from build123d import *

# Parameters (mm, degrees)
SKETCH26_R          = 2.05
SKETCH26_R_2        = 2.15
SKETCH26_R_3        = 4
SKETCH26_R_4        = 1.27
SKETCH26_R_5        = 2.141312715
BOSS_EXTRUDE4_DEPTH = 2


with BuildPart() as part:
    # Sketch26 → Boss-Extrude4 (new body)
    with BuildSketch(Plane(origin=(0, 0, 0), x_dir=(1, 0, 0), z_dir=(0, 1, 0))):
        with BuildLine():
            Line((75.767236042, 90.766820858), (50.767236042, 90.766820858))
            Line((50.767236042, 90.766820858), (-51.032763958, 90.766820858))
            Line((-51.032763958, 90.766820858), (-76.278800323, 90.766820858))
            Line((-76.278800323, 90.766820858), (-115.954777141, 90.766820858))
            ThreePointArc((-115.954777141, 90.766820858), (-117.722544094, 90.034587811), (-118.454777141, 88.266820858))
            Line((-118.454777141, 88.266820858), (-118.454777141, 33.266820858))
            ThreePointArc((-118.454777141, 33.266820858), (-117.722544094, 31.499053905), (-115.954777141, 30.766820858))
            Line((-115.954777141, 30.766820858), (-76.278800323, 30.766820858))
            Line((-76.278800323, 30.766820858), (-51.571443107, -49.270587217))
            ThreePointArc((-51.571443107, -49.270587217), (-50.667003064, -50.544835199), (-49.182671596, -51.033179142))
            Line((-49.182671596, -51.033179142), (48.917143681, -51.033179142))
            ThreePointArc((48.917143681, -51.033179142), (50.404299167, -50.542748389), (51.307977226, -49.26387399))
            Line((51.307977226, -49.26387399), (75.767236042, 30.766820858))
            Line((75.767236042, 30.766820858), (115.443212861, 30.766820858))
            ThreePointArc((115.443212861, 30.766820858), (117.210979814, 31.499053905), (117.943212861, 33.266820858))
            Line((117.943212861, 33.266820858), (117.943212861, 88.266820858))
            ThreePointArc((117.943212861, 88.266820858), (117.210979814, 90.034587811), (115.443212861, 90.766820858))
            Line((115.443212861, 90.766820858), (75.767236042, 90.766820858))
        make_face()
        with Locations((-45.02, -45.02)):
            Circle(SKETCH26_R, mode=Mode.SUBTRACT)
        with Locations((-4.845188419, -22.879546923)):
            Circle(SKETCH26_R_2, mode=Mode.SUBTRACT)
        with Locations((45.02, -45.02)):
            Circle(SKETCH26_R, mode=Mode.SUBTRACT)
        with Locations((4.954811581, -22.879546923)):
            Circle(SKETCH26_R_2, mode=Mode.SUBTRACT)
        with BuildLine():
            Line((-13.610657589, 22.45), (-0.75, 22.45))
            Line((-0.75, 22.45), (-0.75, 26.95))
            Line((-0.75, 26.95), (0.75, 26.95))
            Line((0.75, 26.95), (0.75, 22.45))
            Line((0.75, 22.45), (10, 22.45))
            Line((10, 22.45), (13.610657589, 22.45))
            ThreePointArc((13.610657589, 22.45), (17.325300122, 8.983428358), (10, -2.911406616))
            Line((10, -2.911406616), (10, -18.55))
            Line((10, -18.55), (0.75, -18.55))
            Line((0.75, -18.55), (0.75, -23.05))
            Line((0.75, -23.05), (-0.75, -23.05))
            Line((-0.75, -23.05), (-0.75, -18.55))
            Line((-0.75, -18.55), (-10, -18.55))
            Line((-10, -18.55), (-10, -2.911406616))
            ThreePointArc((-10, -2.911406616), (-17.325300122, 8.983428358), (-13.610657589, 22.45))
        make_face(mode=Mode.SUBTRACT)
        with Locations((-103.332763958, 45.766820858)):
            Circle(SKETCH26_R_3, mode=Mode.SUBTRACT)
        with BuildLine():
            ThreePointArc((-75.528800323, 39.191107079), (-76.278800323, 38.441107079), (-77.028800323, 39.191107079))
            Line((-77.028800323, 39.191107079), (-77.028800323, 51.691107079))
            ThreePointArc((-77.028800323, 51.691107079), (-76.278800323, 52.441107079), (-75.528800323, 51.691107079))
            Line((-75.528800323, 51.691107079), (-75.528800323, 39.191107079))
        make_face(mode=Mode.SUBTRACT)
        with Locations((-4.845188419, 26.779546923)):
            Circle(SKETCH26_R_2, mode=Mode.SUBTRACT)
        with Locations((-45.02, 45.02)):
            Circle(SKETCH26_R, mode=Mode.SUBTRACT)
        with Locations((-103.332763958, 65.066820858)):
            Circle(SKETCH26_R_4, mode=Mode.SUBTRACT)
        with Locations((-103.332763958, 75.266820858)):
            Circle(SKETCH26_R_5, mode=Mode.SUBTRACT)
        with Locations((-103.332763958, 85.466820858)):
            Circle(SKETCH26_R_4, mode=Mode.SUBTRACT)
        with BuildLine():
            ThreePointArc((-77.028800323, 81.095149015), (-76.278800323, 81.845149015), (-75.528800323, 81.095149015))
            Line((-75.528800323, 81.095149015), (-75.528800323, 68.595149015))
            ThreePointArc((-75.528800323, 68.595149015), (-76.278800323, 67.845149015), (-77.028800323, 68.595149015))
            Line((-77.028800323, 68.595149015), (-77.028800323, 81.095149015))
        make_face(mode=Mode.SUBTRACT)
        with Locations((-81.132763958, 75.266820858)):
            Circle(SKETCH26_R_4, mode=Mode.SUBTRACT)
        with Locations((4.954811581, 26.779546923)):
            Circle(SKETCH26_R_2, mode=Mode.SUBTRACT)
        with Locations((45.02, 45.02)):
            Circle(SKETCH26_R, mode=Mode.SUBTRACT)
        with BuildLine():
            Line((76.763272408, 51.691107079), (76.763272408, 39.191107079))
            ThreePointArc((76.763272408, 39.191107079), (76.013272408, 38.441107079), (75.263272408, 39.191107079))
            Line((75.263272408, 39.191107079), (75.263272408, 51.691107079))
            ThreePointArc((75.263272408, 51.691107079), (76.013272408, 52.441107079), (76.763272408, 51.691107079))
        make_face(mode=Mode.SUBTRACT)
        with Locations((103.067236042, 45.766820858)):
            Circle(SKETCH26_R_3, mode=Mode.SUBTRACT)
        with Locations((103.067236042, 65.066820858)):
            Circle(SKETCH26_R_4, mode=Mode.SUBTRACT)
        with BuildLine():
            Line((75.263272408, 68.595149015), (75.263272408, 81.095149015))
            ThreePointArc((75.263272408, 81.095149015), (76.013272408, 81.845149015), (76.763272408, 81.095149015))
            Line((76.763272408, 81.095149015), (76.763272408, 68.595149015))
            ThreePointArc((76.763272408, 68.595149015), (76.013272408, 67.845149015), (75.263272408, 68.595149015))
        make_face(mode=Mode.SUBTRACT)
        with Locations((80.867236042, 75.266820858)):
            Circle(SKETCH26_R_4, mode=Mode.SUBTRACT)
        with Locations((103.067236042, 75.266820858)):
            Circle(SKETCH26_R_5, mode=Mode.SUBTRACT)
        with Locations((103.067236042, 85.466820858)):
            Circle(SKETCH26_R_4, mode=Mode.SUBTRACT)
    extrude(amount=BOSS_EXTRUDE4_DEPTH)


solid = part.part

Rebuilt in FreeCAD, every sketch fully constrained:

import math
import FreeCAD as App
import Part
import Sketcher

V = App.Vector

doc = App.newDocument("Part")
body = doc.addObject("PartDesign::Body", "Body")

sketch1 = doc.addObject("Sketcher::SketchObject", "Sketch")
body.addObject(sketch1)
sketch1.AttachmentSupport = (doc.XZ_Plane, [""])
sketch1.MapMode = "FlatFace"
sketch1.addGeometry(Part.ArcOfCircle(Part.Circle(V(-116, -88.3, 0), V(0, 0, 1), 2.5), math.radians(180), math.radians(270)), False)
sketch1.addGeometry(Part.LineSegment(V(-118.5, -88.3, 0), V(-118.5, -33.3, 0)), False)
sketch1.addGeometry(Part.ArcOfCircle(Part.Circle(V(-116, -33.3, 0), V(0, 0, 1), 2.5), math.radians(90), math.radians(180)), False)
sketch1.addGeometry(Part.LineSegment(V(-116, -30.8, 0), V(-76.3, -30.8, 0)), False)
sketch1.addGeometry(Part.LineSegment(V(-76.3, -30.8, 0), V(-51.6, 49.3, 0)), False)
sketch1.addGeometry(Part.ArcOfCircle(Part.Circle(V(-49.2, 48.5, 0), V(0, 0, 1), 2.5), math.radians(90), math.radians(163)), False)
sketch1.addGeometry(Part.LineSegment(V(-49.2, 51, 0), V(48.9, 51, 0)), False)
sketch1.addGeometry(Part.ArcOfCircle(Part.Circle(V(48.9, 48.5, 0), V(0, 0, 1), 2.5), math.radians(17), math.radians(90)), False)
sketch1.addGeometry(Part.LineSegment(V(51.3, 49.3, 0), V(75.8, -30.8, 0)), False)
sketch1.addGeometry(Part.LineSegment(V(75.8, -30.8, 0), V(115.4, -30.8, 0)), False)
sketch1.addGeometry(Part.ArcOfCircle(Part.Circle(V(115.4, -33.3, 0), V(0, 0, 1), 2.5), math.radians(0), math.radians(90)), False)
sketch1.addGeometry(Part.LineSegment(V(117.9, -33.3, 0), V(117.9, -88.3, 0)), False)
sketch1.addGeometry(Part.ArcOfCircle(Part.Circle(V(115.4, -88.3, 0), V(0, 0, 1), 2.5), math.radians(-90), math.radians(0)), False)
sketch1.addGeometry(Part.LineSegment(V(115.4, -90.8, 0), V(-116, -90.8, 0)), False)
sketch1.addGeometry(Part.Circle(V(-45, 45, 0), V(0, 0, 1), 2), False)
sketch1.addGeometry(Part.Circle(V(-4.8, 22.9, 0), V(0, 0, 1), 2.1), False)
sketch1.addGeometry(Part.Circle(V(45, 45, 0), V(0, 0, 1), 2), False)
sketch1.addGeometry(Part.Circle(V(5, 22.9, 0), V(0, 0, 1), 2.1), False)
sketch1.addGeometry(Part.ArcOfCircle(Part.Circle(V(0, -11.4, 0), V(0, 0, 1), 17.5), math.radians(125), math.radians(219)), False)
sketch1.addGeometry(Part.LineSegment(V(-13.6, -22.4, 0), V(-0.8, -22.4, 0)), False)
sketch1.addGeometry(Part.LineSegment(V(-0.8, -22.4, 0), V(-0.8, -26.9, 0)), False)
sketch1.addGeometry(Part.LineSegment(V(-0.8, -26.9, 0), V(0.8, -26.9, 0)), False)
sketch1.addGeometry(Part.LineSegment(V(0.8, -26.9, 0), V(0.8, -22.4, 0)), False)
sketch1.addGeometry(Part.LineSegment(V(0.8, -22.4, 0), V(13.6, -22.4, 0)), False)
sketch1.addGeometry(Part.ArcOfCircle(Part.Circle(V(0, -11.4, 0), V(0, 0, 1), 17.5), math.radians(-39), math.radians(55)), False)
sketch1.addGeometry(Part.LineSegment(V(10, 2.9, 0), V(10, 18.6, 0)), False)
sketch1.addGeometry(Part.LineSegment(V(10, 18.6, 0), V(0.8, 18.6, 0)), False)
sketch1.addGeometry(Part.LineSegment(V(0.8, 18.6, 0), V(0.8, 23.1, 0)), False)
sketch1.addGeometry(Part.LineSegment(V(0.8, 23.1, 0), V(-0.8, 23.1, 0)), False)
sketch1.addGeometry(Part.LineSegment(V(-0.8, 23.1, 0), V(-0.8, 18.6, 0)), False)
sketch1.addGeometry(Part.LineSegment(V(-0.8, 18.6, 0), V(-10, 18.6, 0)), False)
sketch1.addGeometry(Part.LineSegment(V(-10, 18.6, 0), V(-10, 2.9, 0)), False)
sketch1.addGeometry(Part.Circle(V(-103.3, -45.8, 0), V(0, 0, 1), 4), False)
sketch1.addGeometry(Part.LineSegment(V(-75.5, -51.7, 0), V(-75.5, -39.2, 0)), False)
sketch1.addGeometry(Part.ArcOfCircle(Part.Circle(V(-76.3, -39.2, 0), V(0, 0, 1), 0.8), math.radians(0), math.radians(180)), False)
sketch1.addGeometry(Part.LineSegment(V(-77, -39.2, 0), V(-77, -51.7, 0)), False)
sketch1.addGeometry(Part.ArcOfCircle(Part.Circle(V(-76.3, -51.7, 0), V(0, 0, 1), 0.8), math.radians(180), math.radians(360)), False)
sketch1.addGeometry(Part.Circle(V(-4.8, -26.8, 0), V(0, 0, 1), 2.1), False)
sketch1.addGeometry(Part.Circle(V(-45, -45, 0), V(0, 0, 1), 2), False)
sketch1.addGeometry(Part.Circle(V(-103.3, -65.1, 0), V(0, 0, 1), 1.3), False)
sketch1.addGeometry(Part.Circle(V(-103.3, -75.3, 0), V(0, 0, 1), 2.1), False)
sketch1.addGeometry(Part.Circle(V(-81.1, -75.3, 0), V(0, 0, 1), 1.3), False)
sketch1.addGeometry(Part.Circle(V(-103.3, -85.5, 0), V(0, 0, 1), 1.3), False)
sketch1.addGeometry(Part.LineSegment(V(-77, -68.6, 0), V(-77, -81.1, 0)), False)
sketch1.addGeometry(Part.ArcOfCircle(Part.Circle(V(-76.3, -81.1, 0), V(0, 0, 1), 0.8), math.radians(180), math.radians(360)), False)
sketch1.addGeometry(Part.LineSegment(V(-75.5, -81.1, 0), V(-75.5, -68.6, 0)), False)
sketch1.addGeometry(Part.ArcOfCircle(Part.Circle(V(-76.3, -68.6, 0), V(0, 0, 1), 0.8), math.radians(0), math.radians(180)), False)
sketch1.addGeometry(Part.Circle(V(5, -26.8, 0), V(0, 0, 1), 2.1), False)
sketch1.addGeometry(Part.Circle(V(45, -45, 0), V(0, 0, 1), 2), False)
sketch1.addGeometry(Part.ArcOfCircle(Part.Circle(V(76, -51.7, 0), V(0, 0, 1), 0.8), math.radians(180), math.radians(360)), False)
sketch1.addGeometry(Part.LineSegment(V(76.8, -51.7, 0), V(76.8, -39.2, 0)), False)
sketch1.addGeometry(Part.ArcOfCircle(Part.Circle(V(76, -39.2, 0), V(0, 0, 1), 0.8), math.radians(0), math.radians(180)), False)
sketch1.addGeometry(Part.LineSegment(V(75.3, -39.2, 0), V(75.3, -51.7, 0)), False)
sketch1.addGeometry(Part.Circle(V(103.1, -45.8, 0), V(0, 0, 1), 4), False)
sketch1.addGeometry(Part.Circle(V(103.1, -65.1, 0), V(0, 0, 1), 1.3), False)
sketch1.addGeometry(Part.ArcOfCircle(Part.Circle(V(76, -68.6, 0), V(0, 0, 1), 0.8), math.radians(0), math.radians(180)), False)
sketch1.addGeometry(Part.LineSegment(V(75.3, -68.6, 0), V(75.3, -81.1, 0)), False)
sketch1.addGeometry(Part.ArcOfCircle(Part.Circle(V(76, -81.1, 0), V(0, 0, 1), 0.8), math.radians(180), math.radians(360)), False)
sketch1.addGeometry(Part.LineSegment(V(76.8, -81.1, 0), V(76.8, -68.6, 0)), False)
sketch1.addGeometry(Part.Circle(V(80.9, -75.3, 0), V(0, 0, 1), 1.3), False)
sketch1.addGeometry(Part.Circle(V(103.1, -75.3, 0), V(0, 0, 1), 2.1), False)
sketch1.addGeometry(Part.Circle(V(103.1, -85.5, 0), V(0, 0, 1), 1.3), False)
sketch1.addConstraint(Sketcher.Constraint("Tangent", 0, 1, 1, 1))
sketch1.addConstraint(Sketcher.Constraint("Tangent", 1, 2, 2, 2))
sketch1.addConstraint(Sketcher.Constraint("Tangent", 2, 1, 3, 1))
sketch1.addConstraint(Sketcher.Constraint("Coincident", 3, 2, 4, 1))
sketch1.addConstraint(Sketcher.Constraint("Tangent", 4, 2, 5, 2))
sketch1.addConstraint(Sketcher.Constraint("Tangent", 5, 1, 6, 1))
sketch1.addConstraint(Sketcher.Constraint("Tangent", 6, 2, 7, 2))
sketch1.addConstraint(Sketcher.Constraint("Tangent", 7, 1, 8, 1))
sketch1.addConstraint(Sketcher.Constraint("Coincident", 8, 2, 9, 1))
sketch1.addConstraint(Sketcher.Constraint("Tangent", 9, 2, 10, 2))
sketch1.addConstraint(Sketcher.Constraint("Tangent", 10, 1, 11, 1))
sketch1.addConstraint(Sketcher.Constraint("Tangent", 11, 2, 12, 2))
sketch1.addConstraint(Sketcher.Constraint("Tangent", 12, 1, 13, 1))
sketch1.addConstraint(Sketcher.Constraint("Tangent", 13, 2, 0, 2))
sketch1.addConstraint(Sketcher.Constraint("Coincident", 18, 2, 19, 1))
sketch1.addConstraint(Sketcher.Constraint("Coincident", 19, 2, 20, 1))
sketch1.addConstraint(Sketcher.Constraint("Coincident", 20, 2, 21, 1))
sketch1.addConstraint(Sketcher.Constraint("Coincident", 21, 2, 22, 1))
sketch1.addConstraint(Sketcher.Constraint("Coincident", 22, 2, 23, 1))
sketch1.addConstraint(Sketcher.Constraint("Coincident", 23, 2, 24, 1))
sketch1.addConstraint(Sketcher.Constraint("Coincident", 24, 2, 25, 1))
sketch1.addConstraint(Sketcher.Constraint("Coincident", 25, 2, 26, 1))
sketch1.addConstraint(Sketcher.Constraint("Coincident", 26, 2, 27, 1))
sketch1.addConstraint(Sketcher.Constraint("Coincident", 27, 2, 28, 1))
sketch1.addConstraint(Sketcher.Constraint("Coincident", 28, 2, 29, 1))
sketch1.addConstraint(Sketcher.Constraint("Coincident", 29, 2, 30, 1))
sketch1.addConstraint(Sketcher.Constraint("Coincident", 30, 2, 31, 1))
sketch1.addConstraint(Sketcher.Constraint("Coincident", 31, 2, 18, 1))
sketch1.addConstraint(Sketcher.Constraint("Tangent", 33, 2, 34, 1))
sketch1.addConstraint(Sketcher.Constraint("Tangent", 34, 2, 35, 1))
sketch1.addConstraint(Sketcher.Constraint("Tangent", 35, 2, 36, 1))
sketch1.addConstraint(Sketcher.Constraint("Tangent", 36, 2, 33, 1))
sketch1.addConstraint(Sketcher.Constraint("Tangent", 43, 2, 44, 1))
sketch1.addConstraint(Sketcher.Constraint("Tangent", 44, 2, 45, 1))
sketch1.addConstraint(Sketcher.Constraint("Tangent", 45, 2, 46, 1))
sketch1.addConstraint(Sketcher.Constraint("Tangent", 46, 2, 43, 1))
sketch1.addConstraint(Sketcher.Constraint("Tangent", 49, 2, 50, 1))
sketch1.addConstraint(Sketcher.Constraint("Tangent", 50, 2, 51, 1))
sketch1.addConstraint(Sketcher.Constraint("Tangent", 51, 2, 52, 1))
sketch1.addConstraint(Sketcher.Constraint("Tangent", 52, 2, 49, 1))
sketch1.addConstraint(Sketcher.Constraint("Tangent", 55, 2, 56, 1))
sketch1.addConstraint(Sketcher.Constraint("Tangent", 56, 2, 57, 1))
sketch1.addConstraint(Sketcher.Constraint("Tangent", 57, 2, 58, 1))
sketch1.addConstraint(Sketcher.Constraint("Tangent", 58, 2, 55, 1))
sketch1.addConstraint(Sketcher.Constraint("Vertical", 1))
sketch1.addConstraint(Sketcher.Constraint("Horizontal", 3))
sketch1.addConstraint(Sketcher.Constraint("Horizontal", 6))
sketch1.addConstraint(Sketcher.Constraint("Horizontal", 9))
sketch1.addConstraint(Sketcher.Constraint("Vertical", 11))
sketch1.addConstraint(Sketcher.Constraint("Horizontal", 13))
sketch1.addConstraint(Sketcher.Constraint("Horizontal", 19))
sketch1.addConstraint(Sketcher.Constraint("Vertical", 20))
sketch1.addConstraint(Sketcher.Constraint("Horizontal", 21))
sketch1.addConstraint(Sketcher.Constraint("Vertical", 22))
sketch1.addConstraint(Sketcher.Constraint("Horizontal", 23))
sketch1.addConstraint(Sketcher.Constraint("Vertical", 25))
sketch1.addConstraint(Sketcher.Constraint("Horizontal", 26))
sketch1.addConstraint(Sketcher.Constraint("Vertical", 27))
sketch1.addConstraint(Sketcher.Constraint("Horizontal", 28))
sketch1.addConstraint(Sketcher.Constraint("Vertical", 29))
sketch1.addConstraint(Sketcher.Constraint("Horizontal", 30))
sketch1.addConstraint(Sketcher.Constraint("Vertical", 31))
sketch1.addConstraint(Sketcher.Constraint("Vertical", 33))
sketch1.addConstraint(Sketcher.Constraint("Vertical", 35))
sketch1.addConstraint(Sketcher.Constraint("Vertical", 43))
sketch1.addConstraint(Sketcher.Constraint("Vertical", 45))
sketch1.addConstraint(Sketcher.Constraint("Vertical", 50))
sketch1.addConstraint(Sketcher.Constraint("Vertical", 52))
sketch1.addConstraint(Sketcher.Constraint("Vertical", 56))
sketch1.addConstraint(Sketcher.Constraint("Vertical", 58))
sketch1.addConstraint(Sketcher.Constraint("Coincident", 24, 3, 18, 3))
sketch1.addConstraint(Sketcher.Constraint("Equal", 0, 2))
sketch1.addConstraint(Sketcher.Constraint("Equal", 2, 5))
sketch1.addConstraint(Sketcher.Constraint("Equal", 5, 7))
sketch1.addConstraint(Sketcher.Constraint("Equal", 7, 10))
sketch1.addConstraint(Sketcher.Constraint("Equal", 10, 12))
sketch1.addConstraint(Sketcher.Constraint("Equal", 14, 16))
sketch1.addConstraint(Sketcher.Constraint("Equal", 15, 17))
sketch1.addConstraint(Sketcher.Constraint("Equal", 18, 24))
sketch1.addConstraint(Sketcher.Constraint("Equal", 17, 37))
sketch1.addConstraint(Sketcher.Constraint("Equal", 16, 38))
sketch1.addConstraint(Sketcher.Constraint("Equal", 39, 41))
sketch1.addConstraint(Sketcher.Constraint("Equal", 41, 42))
sketch1.addConstraint(Sketcher.Constraint("Equal", 36, 44))
sketch1.addConstraint(Sketcher.Constraint("Equal", 37, 47))
sketch1.addConstraint(Sketcher.Constraint("Equal", 38, 48))
sketch1.addConstraint(Sketcher.Constraint("Equal", 46, 49))
sketch1.addConstraint(Sketcher.Constraint("Equal", 32, 53))
sketch1.addConstraint(Sketcher.Constraint("Equal", 42, 54))
sketch1.addConstraint(Sketcher.Constraint("Equal", 51, 55))
sketch1.addConstraint(Sketcher.Constraint("Equal", 54, 59))
sketch1.addConstraint(Sketcher.Constraint("Equal", 40, 60))
sketch1.addConstraint(Sketcher.Constraint("Equal", 59, 61))
sketch1.addConstraint(Sketcher.Constraint("Symmetric", 16, 3, 38, 3, -1, 1))
sketch1.addConstraint(Sketcher.Constraint("Symmetric", 14, 3, 48, 3, -1, 1))
sketch1.addConstraint(Sketcher.Constraint("Symmetric", 14, 3, 16, 3, -2))
sketch1.addConstraint(Sketcher.Constraint("Symmetric", 19, 2, 22, 2, -2))
sketch1.addConstraint(Sketcher.Constraint("Symmetric", 26, 2, 29, 2, -2))
sketch1.addConstraint(Sketcher.Constraint("Symmetric", 24, 2, 31, 2, -2))
sketch1.addConstraint(Sketcher.Constraint("Horizontal", 2, 3, 10, 3))
sketch1.addConstraint(Sketcher.Constraint("Horizontal", 15, 3, 17, 3))
sketch1.addConstraint(Sketcher.Constraint("Horizontal", 40, 3, 41, 3))
sketch1.addConstraint(Sketcher.Constraint("Horizontal", 37, 3, 47, 3))
sketch1.addConstraint(Sketcher.Constraint("Horizontal", 36, 3, 49, 3))
sketch1.addConstraint(Sketcher.Constraint("Horizontal", 34, 3, 51, 3))
sketch1.addConstraint(Sketcher.Constraint("Horizontal", 32, 3, 53, 3))
sketch1.addConstraint(Sketcher.Constraint("Horizontal", 39, 3, 54, 3))
sketch1.addConstraint(Sketcher.Constraint("Horizontal", 46, 3, 55, 3))
sketch1.addConstraint(Sketcher.Constraint("Horizontal", 44, 3, 57, 3))
sketch1.addConstraint(Sketcher.Constraint("Horizontal", 41, 3, 59, 3))
sketch1.addConstraint(Sketcher.Constraint("Horizontal", 59, 3, 60, 3))
sketch1.addConstraint(Sketcher.Constraint("Horizontal", 42, 3, 61, 3))
sketch1.addConstraint(Sketcher.Constraint("Vertical", 15, 3, 37, 3))
sketch1.addConstraint(Sketcher.Constraint("Vertical", 32, 3, 39, 3))
sketch1.addConstraint(Sketcher.Constraint("Vertical", 39, 3, 40, 3))
sketch1.addConstraint(Sketcher.Constraint("Vertical", 40, 3, 42, 3))
sketch1.addConstraint(Sketcher.Constraint("Vertical", 36, 3, 44, 3))
sketch1.addConstraint(Sketcher.Constraint("Vertical", 17, 3, 47, 3))
sketch1.addConstraint(Sketcher.Constraint("Vertical", 53, 3, 54, 3))
sketch1.addConstraint(Sketcher.Constraint("Vertical", 51, 3, 55, 3))
sketch1.addConstraint(Sketcher.Constraint("Vertical", 54, 3, 60, 3))
sketch1.addConstraint(Sketcher.Constraint("Vertical", 60, 3, 61, 3))
sketch1.addConstraint(Sketcher.Constraint("Vertical", 46, 3, 3, 2))
sketch1.addConstraint(Sketcher.Constraint("Vertical", 22, 2, 26, 2))
sketch1.addConstraint(Sketcher.Constraint("Equal", 3, 9))
sketch1.addConstraint(Sketcher.Constraint("Equal", 22, 27))
sketch1.addConstraint(Sketcher.Constraint("Equal", 35, 43))
sketch1.addConstraint(Sketcher.Constraint("Diameter", 32, 8.0))
sketch1.addConstraint(Sketcher.Constraint("Diameter", 14, 4.1))
sketch1.addConstraint(Sketcher.Constraint("Diameter", 15, 4.3))
sketch1.addConstraint(Sketcher.Constraint("Radius", 0, 2.5))
sketch1.addConstraint(Sketcher.Constraint("Radius", 18, 17.5))
sketch1.addConstraint(Sketcher.Constraint("Diameter", 39, 2.54))
sketch1.addConstraint(Sketcher.Constraint("DistanceY", 1, 1, 1, 2, 55.0))
sketch1.addConstraint(Sketcher.Constraint("Radius", 34, 0.75))
sketch1.addConstraint(Sketcher.Constraint("DistanceX", 21, 1, 21, 2, 1.5))
sketch1.addConstraint(Sketcher.Constraint("DistanceY", 20, 2, 20, 1, 4.5))
sketch1.addConstraint(Sketcher.Constraint("DistanceY", 33, 1, 33, 2, 12.5))
sketch1.addConstraint(Sketcher.Constraint("DistanceX", -1, 1, 24, 2, 10.0))
sketch1.addConstraint(Sketcher.Constraint("DistanceX", 14, 3, -1, 1, 45.02))
sketch1.addConstraint(Sketcher.Constraint("DistanceY", -1, 1, 14, 3, 45.02))
sketch1.addConstraint(Sketcher.Constraint("DistanceY", 18, 3, -1, 1, 11.45))
sketch1.addConstraint(Sketcher.Constraint("DistanceY", 18, 2, -1, 1, 22.45))
sketch1.addConstraint(Sketcher.Constraint("DistanceY", -1, 1, 25, 2, 18.55))
sketch1.addConstraint(Sketcher.Constraint("Diameter", 40, 4.282625))
sketch1.addConstraint(Sketcher.Constraint("DistanceX", 13, 2, 13, 1, 231.39799))
sketch1.addConstraint(Sketcher.Constraint("DistanceX", 34, 3, -1, 1, 76.2788))
sketch1.addConstraint(Sketcher.Constraint("Distance", 8, 83.68493))
sketch1.addConstraint(Sketcher.Constraint("DistanceX", 3, 1, 3, 2, 39.675977))
sketch1.addConstraint(Sketcher.Constraint("DistanceX", 6, 1, 6, 2, 98.099815))
sketch1.addConstraint(Sketcher.Constraint("DistanceY", 0, 3, -1, 1, 88.266821))
sketch1.addConstraint(Sketcher.Constraint("DistanceX", 5, 3, -1, 1, 49.182672))
sketch1.addConstraint(Sketcher.Constraint("DistanceX", 15, 3, -1, 1, 4.845188))
sketch1.addConstraint(Sketcher.Constraint("DistanceX", -1, 1, 17, 3, 4.954812))
sketch1.addConstraint(Sketcher.Constraint("DistanceY", 32, 3, -1, 1, 45.766821))
sketch1.addConstraint(Sketcher.Constraint("DistanceY", 39, 3, -1, 1, 65.066821))
sketch1.addConstraint(Sketcher.Constraint("DistanceY", 40, 3, -1, 1, 75.266821))
sketch1.addConstraint(Sketcher.Constraint("DistanceY", 42, 3, -1, 1, 85.466821))
sketch1.addConstraint(Sketcher.Constraint("DistanceY", 44, 3, -1, 1, 81.095149))
sketch1.addConstraint(Sketcher.Constraint("DistanceY", -1, 1, 15, 3, 22.879547))
sketch1.addConstraint(Sketcher.Constraint("DistanceX", 32, 3, -1, 1, 103.332764))
sketch1.addConstraint(Sketcher.Constraint("DistanceY", 34, 3, -1, 1, 39.191107))
sketch1.addConstraint(Sketcher.Constraint("DistanceY", 37, 3, -1, 1, 26.779547))
sketch1.addConstraint(Sketcher.Constraint("DistanceX", 41, 3, -1, 1, 81.132764))
sketch1.addConstraint(Sketcher.Constraint("DistanceX", -1, 1, 49, 3, 76.013272))
sketch1.addConstraint(Sketcher.Constraint("DistanceX", -1, 1, 53, 3, 103.067236))
sketch1.addConstraint(Sketcher.Constraint("DistanceX", -1, 1, 59, 3, 80.867236))
pad1 = doc.addObject("PartDesign::Pad", "Pad")
body.addObject(pad1)
pad1.Profile = sketch1
pad1.Length = 2
pad1.Reversed = True

doc.recompute()
